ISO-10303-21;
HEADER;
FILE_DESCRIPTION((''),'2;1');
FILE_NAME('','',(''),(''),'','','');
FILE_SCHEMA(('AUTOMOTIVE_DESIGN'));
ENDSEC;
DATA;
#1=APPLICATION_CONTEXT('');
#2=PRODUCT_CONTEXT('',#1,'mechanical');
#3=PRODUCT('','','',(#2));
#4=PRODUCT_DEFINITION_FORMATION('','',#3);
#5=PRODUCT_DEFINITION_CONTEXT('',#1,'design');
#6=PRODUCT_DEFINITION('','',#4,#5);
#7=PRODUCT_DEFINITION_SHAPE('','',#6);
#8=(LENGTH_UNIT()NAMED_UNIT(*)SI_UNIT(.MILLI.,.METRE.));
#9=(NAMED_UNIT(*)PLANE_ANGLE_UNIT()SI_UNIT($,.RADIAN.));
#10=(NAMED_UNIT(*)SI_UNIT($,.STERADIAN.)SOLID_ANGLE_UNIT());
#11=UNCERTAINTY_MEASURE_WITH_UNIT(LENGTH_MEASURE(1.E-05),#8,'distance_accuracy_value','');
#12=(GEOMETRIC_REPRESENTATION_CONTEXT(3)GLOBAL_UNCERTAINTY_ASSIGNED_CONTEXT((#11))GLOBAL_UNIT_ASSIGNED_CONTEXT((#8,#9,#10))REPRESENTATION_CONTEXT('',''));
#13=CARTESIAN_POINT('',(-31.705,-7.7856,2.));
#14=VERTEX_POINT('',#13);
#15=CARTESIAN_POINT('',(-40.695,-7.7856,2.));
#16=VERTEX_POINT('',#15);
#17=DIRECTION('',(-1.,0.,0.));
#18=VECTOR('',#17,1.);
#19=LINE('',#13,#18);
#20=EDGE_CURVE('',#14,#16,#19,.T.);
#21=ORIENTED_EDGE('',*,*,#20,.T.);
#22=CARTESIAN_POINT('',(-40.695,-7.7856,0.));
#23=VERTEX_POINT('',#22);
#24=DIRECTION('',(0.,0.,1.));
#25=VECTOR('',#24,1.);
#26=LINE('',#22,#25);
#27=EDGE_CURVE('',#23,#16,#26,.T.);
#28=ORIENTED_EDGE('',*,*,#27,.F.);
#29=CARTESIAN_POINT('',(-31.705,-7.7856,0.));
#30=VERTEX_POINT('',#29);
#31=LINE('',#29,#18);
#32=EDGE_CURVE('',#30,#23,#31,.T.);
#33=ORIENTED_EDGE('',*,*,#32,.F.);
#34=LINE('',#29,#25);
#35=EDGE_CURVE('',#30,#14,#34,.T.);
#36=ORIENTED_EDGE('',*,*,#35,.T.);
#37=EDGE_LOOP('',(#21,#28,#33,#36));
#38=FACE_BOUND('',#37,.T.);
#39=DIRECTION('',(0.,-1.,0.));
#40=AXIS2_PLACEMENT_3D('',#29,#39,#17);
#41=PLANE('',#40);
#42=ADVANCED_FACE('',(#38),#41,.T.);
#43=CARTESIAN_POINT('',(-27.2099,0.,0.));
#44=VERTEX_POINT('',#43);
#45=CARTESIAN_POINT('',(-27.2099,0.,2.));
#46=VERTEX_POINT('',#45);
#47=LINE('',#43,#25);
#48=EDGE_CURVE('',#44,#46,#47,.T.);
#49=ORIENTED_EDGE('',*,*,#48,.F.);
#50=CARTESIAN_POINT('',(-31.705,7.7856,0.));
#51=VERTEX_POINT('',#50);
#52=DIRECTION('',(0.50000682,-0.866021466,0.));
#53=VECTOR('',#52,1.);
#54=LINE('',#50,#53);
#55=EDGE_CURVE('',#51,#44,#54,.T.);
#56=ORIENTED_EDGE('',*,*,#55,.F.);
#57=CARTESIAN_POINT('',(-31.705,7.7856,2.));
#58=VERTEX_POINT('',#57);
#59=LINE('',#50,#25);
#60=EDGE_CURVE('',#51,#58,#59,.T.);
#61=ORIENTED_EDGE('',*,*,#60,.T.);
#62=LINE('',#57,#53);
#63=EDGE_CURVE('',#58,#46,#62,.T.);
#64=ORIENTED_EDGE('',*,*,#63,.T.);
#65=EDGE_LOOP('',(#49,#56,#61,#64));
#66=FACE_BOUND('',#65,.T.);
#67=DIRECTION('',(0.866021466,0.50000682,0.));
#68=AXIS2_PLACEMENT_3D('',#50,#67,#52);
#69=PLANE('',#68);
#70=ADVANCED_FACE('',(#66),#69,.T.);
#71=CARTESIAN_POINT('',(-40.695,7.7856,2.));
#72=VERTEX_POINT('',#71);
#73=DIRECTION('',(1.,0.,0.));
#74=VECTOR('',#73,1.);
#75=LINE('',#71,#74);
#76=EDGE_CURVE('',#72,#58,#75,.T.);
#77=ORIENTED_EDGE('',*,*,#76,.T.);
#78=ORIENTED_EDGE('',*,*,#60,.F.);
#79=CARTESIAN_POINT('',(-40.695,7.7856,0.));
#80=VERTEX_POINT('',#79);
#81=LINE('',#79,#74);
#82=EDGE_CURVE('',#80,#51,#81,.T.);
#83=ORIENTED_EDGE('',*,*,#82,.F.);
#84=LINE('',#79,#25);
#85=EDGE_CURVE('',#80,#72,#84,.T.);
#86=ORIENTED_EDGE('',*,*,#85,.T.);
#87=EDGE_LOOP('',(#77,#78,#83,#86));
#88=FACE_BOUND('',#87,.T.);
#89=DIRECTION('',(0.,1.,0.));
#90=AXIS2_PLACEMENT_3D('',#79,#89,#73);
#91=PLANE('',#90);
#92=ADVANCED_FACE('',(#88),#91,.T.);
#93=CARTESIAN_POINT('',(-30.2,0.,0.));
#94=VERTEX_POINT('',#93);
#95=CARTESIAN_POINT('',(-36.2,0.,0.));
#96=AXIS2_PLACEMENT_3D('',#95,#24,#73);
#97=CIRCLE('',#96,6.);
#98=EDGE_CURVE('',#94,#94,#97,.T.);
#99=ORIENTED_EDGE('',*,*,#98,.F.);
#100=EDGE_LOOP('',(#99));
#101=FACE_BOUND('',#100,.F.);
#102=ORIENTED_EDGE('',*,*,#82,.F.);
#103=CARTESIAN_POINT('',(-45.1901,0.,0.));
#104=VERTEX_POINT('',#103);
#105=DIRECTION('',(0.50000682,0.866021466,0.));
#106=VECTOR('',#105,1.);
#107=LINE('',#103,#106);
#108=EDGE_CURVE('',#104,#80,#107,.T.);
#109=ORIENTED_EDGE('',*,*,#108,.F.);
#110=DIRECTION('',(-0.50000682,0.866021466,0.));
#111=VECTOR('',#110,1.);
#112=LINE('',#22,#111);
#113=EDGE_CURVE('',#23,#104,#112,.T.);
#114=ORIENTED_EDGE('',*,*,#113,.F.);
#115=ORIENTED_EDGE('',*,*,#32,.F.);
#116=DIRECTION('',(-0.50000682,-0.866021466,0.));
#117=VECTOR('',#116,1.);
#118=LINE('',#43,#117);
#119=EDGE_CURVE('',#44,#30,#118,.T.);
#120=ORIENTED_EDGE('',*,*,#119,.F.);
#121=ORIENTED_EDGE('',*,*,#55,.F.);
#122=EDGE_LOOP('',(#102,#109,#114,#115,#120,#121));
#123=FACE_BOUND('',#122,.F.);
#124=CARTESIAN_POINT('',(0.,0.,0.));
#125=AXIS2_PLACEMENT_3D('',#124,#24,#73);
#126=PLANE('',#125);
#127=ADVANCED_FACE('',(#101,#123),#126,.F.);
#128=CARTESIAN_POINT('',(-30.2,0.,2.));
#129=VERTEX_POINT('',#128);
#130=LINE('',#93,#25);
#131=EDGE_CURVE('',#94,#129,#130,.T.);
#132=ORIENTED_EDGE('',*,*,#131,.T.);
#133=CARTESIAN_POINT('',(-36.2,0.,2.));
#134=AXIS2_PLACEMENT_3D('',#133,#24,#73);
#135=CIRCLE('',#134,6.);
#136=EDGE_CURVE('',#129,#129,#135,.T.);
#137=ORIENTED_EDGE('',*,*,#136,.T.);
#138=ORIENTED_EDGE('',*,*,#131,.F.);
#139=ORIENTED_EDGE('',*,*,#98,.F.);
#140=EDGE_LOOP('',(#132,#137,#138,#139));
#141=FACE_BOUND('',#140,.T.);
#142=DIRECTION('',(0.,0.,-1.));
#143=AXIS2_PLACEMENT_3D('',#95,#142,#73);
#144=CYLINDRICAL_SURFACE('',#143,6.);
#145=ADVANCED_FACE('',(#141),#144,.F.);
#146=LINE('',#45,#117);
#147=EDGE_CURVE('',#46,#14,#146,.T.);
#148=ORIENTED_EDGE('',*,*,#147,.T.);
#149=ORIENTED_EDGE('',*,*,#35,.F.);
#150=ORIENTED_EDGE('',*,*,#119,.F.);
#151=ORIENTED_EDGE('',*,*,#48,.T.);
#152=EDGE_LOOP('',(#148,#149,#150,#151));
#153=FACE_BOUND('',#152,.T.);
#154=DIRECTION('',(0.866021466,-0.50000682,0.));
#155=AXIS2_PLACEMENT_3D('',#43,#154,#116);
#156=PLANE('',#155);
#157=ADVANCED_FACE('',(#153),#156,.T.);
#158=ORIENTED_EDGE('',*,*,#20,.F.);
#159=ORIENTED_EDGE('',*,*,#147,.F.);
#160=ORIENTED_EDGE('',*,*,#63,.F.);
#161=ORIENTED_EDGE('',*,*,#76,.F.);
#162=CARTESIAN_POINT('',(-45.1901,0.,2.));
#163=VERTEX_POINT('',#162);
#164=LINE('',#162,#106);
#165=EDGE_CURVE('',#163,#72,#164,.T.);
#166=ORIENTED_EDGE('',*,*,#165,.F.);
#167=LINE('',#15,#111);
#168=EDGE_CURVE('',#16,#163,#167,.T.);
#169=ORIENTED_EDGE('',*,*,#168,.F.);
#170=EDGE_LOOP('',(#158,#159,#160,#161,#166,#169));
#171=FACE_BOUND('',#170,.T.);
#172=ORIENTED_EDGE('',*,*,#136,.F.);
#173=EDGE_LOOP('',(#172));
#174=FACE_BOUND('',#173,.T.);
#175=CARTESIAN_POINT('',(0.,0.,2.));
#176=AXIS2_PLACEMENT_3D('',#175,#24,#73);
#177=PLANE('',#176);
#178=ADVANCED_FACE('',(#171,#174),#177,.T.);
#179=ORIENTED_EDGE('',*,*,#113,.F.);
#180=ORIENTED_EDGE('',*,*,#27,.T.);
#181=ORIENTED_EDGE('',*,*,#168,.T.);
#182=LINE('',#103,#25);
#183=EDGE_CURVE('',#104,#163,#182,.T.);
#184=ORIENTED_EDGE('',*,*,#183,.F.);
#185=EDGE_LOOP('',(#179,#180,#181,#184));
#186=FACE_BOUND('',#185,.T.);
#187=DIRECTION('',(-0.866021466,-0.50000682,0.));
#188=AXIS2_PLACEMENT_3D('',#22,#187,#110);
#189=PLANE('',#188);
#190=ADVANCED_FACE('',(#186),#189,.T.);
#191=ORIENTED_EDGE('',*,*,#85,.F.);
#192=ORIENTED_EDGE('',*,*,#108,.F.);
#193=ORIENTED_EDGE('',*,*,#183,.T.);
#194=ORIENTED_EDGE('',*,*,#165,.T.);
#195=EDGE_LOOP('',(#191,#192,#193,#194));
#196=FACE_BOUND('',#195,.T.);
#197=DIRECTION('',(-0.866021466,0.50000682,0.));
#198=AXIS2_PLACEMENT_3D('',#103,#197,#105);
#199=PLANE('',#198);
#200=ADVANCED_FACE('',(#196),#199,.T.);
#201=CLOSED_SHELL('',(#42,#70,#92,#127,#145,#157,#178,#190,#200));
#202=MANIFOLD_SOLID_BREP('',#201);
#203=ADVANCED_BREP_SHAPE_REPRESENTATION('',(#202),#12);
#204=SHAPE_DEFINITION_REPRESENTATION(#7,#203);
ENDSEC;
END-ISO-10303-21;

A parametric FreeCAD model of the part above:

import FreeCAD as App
import Part
import Sketcher
from FreeCAD import Vector
Q = App.Units.Quantity

doc = App.newDocument("Part")
body = doc.addObject("PartDesign::Body", "Body")

# Sketch on XY plane
sketch1 = doc.addObject("Sketcher::SketchObject", "Sketch")
body.addObject(sketch1)
sketch1.AttachmentSupport = (doc.XY_Plane, [""])
sketch1.MapMode = "FlatFace"
sketch1.addGeometry(Part.LineSegment(Vector(-31.705, -7.7856, 0), Vector(-27.2099, 0, 0)), False)
sketch1.addGeometry(Part.LineSegment(Vector(-27.2099, 0, 0), Vector(-31.705, 7.7856, 0)), False)
sketch1.addGeometry(Part.LineSegment(Vector(-31.705, 7.7856, 0), Vector(-40.695, 7.7856, 0)), False)
sketch1.addGeometry(Part.LineSegment(Vector(-40.695, 7.7856, 0), Vector(-45.1901, 0, 0)), False)
sketch1.addGeometry(Part.LineSegment(Vector(-45.1901, 0, 0), Vector(-40.695, -7.7856, 0)), False)
sketch1.addGeometry(Part.LineSegment(Vector(-40.695, -7.7856, 0), Vector(-31.705, -7.7856, 0)), False)
sketch1.addGeometry(Part.Circle(Vector(-36.2, 0, 0), Vector(0, 0, 1), 6), False)
sketch1.addConstraint(Sketcher.Constraint("Coincident", 0, 2, 1, 1))
sketch1.addConstraint(Sketcher.Constraint("Coincident", 1, 2, 2, 1))
sketch1.addConstraint(Sketcher.Constraint("Coincident", 2, 2, 3, 1))
sketch1.addConstraint(Sketcher.Constraint("Coincident", 3, 2, 4, 1))
sketch1.addConstraint(Sketcher.Constraint("Coincident", 4, 2, 5, 1))
sketch1.addConstraint(Sketcher.Constraint("Coincident", 5, 2, 0, 1))
sketch1.addConstraint(Sketcher.Constraint("Horizontal", 2))
sketch1.addConstraint(Sketcher.Constraint("Horizontal", 5))
sketch1.addConstraint(Sketcher.Constraint("Symmetric", 2, 2, 4, 2, -1))
sketch1.addConstraint(Sketcher.Constraint("PointOnObject", 6, 3, -1))
sketch1.addConstraint(Sketcher.Constraint("PointOnObject", 0, 2, -1))
sketch1.addConstraint(Sketcher.Constraint("PointOnObject", 3, 2, -1))
sketch1.addConstraint(Sketcher.Constraint("Parallel", 0, 3))
sketch1.addConstraint(Sketcher.Constraint("Parallel", 1, 4))
sketch1.addConstraint(Sketcher.Constraint("Diameter", 6, Q("12 mm")))
sketch1.addConstraint(Sketcher.Constraint("Angle", 0, Q("59.9995 deg")))
sketch1.addConstraint(Sketcher.Constraint("DistanceX", 2, 2, 2, 1, Q("8.99 mm")))
sketch1.addConstraint(Sketcher.Constraint("DistanceX", 6, 3, -1, 1, Q("36.2 mm")))
sketch1.addConstraint(Sketcher.Constraint("Distance", 0, Q("8.99 mm")))
sketch1.addConstraint(Sketcher.Constraint("DistanceX", 0, 2, -1, 1, Q("27.21 mm")))
pad1 = doc.addObject("PartDesign::Pad", "Pad")
body.addObject(pad1)
pad1.Profile = sketch1
pad1.Length = 2

doc.recompute()
